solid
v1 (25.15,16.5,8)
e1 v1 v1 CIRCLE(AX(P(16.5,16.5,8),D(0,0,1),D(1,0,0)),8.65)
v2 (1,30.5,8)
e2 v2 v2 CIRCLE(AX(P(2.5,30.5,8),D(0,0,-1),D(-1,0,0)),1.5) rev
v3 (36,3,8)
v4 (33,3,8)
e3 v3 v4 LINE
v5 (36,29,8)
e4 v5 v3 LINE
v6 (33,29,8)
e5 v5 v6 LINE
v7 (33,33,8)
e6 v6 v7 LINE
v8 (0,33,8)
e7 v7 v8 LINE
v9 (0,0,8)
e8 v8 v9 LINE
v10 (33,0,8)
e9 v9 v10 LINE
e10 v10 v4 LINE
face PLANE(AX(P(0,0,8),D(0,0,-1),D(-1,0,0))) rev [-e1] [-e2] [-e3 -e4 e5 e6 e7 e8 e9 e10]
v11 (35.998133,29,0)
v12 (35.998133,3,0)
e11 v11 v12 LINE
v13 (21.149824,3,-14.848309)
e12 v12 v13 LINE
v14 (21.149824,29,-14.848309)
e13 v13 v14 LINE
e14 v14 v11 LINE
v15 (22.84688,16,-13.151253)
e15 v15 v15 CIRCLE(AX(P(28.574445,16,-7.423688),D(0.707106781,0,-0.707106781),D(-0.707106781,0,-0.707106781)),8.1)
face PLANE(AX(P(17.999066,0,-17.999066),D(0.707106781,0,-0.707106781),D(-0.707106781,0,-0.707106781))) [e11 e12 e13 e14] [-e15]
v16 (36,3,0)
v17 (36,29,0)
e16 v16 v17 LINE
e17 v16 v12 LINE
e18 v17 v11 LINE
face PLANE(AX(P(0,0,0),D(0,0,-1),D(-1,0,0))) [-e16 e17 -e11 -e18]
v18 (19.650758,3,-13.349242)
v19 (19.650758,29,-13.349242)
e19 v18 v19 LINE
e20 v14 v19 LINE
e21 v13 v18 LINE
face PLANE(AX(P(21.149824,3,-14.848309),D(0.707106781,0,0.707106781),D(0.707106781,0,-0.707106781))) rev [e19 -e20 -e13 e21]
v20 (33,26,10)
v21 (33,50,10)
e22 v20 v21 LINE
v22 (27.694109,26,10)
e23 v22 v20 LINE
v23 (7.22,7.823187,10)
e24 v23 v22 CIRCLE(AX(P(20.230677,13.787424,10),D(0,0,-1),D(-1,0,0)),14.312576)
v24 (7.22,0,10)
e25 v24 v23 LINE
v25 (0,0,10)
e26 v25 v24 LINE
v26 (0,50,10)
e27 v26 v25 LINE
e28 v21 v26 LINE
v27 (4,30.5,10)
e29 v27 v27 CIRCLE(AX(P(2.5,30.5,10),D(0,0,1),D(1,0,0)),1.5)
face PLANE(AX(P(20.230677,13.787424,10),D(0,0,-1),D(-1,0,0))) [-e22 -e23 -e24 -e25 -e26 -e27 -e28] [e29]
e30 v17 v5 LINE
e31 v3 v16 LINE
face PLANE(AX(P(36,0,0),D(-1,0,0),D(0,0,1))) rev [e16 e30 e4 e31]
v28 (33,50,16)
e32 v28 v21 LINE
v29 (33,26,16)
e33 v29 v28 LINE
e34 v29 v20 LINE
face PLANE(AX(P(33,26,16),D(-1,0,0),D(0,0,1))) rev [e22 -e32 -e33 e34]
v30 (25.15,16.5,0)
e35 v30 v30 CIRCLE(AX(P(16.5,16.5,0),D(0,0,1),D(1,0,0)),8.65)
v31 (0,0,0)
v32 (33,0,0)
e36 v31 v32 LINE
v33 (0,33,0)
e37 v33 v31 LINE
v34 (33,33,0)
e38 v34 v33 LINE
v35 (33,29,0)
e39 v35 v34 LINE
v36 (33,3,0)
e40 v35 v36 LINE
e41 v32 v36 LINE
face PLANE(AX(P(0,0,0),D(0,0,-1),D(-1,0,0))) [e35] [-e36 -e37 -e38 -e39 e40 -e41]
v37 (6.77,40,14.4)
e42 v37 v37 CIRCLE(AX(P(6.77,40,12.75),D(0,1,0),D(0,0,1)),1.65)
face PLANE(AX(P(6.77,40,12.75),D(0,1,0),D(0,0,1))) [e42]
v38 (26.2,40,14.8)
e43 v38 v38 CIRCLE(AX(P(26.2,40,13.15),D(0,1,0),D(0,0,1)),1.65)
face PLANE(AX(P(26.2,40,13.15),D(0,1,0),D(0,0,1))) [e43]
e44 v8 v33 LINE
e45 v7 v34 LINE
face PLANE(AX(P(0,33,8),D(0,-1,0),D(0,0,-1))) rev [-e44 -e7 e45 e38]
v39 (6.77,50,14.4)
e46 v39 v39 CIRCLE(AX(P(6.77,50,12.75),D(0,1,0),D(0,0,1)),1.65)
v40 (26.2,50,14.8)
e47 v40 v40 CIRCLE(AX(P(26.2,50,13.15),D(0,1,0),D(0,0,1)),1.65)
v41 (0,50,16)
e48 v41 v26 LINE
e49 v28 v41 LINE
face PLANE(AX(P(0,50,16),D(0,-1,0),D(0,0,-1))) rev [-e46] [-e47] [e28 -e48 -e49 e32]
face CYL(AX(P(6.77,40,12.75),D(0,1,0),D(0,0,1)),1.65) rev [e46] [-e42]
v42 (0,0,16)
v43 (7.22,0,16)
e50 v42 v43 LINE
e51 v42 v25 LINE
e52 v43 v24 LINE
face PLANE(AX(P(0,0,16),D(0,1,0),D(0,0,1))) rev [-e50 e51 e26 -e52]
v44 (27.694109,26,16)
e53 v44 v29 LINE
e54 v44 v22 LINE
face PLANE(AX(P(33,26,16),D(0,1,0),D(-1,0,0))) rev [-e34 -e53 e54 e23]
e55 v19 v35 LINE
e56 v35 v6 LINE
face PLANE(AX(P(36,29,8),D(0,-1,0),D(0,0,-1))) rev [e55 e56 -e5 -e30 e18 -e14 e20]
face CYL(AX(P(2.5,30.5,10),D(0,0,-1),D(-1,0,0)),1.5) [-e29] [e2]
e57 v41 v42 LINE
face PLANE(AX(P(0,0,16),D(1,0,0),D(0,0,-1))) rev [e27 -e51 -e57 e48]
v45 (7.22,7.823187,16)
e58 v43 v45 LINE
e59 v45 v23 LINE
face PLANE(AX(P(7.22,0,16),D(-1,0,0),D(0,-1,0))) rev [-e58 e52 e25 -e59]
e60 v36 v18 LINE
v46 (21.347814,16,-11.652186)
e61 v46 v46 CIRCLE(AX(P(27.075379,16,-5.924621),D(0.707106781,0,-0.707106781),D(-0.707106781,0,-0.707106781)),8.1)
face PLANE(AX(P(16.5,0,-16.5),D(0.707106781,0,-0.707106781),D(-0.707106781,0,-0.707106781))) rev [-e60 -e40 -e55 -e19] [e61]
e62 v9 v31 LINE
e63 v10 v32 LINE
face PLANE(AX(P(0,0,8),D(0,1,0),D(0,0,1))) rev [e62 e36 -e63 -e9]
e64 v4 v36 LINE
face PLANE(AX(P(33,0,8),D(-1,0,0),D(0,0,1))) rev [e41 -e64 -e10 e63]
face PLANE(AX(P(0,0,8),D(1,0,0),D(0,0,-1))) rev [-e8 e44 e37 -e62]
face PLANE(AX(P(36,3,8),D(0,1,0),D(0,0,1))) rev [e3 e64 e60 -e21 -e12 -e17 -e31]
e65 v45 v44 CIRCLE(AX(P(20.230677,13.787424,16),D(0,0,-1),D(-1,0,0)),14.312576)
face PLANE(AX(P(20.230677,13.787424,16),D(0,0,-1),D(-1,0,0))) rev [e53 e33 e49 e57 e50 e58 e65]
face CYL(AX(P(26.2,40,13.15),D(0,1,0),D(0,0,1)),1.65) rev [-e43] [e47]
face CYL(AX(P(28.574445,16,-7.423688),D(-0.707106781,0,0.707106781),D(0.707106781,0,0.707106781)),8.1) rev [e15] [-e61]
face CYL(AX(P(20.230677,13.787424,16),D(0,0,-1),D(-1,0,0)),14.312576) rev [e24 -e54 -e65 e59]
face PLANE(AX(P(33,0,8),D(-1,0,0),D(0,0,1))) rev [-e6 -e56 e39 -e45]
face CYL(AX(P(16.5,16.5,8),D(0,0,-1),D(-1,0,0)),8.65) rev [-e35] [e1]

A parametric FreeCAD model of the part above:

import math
import FreeCAD as App
import Part
import Sketcher
Q = App.Units.Quantity

doc = App.newDocument("Part")
body = doc.addObject("PartDesign::Body", "Body")

# Sketch on XY plane
sketch1 = body.newObject("Sketcher::SketchObject", "Sketch")
sketch1.AttachmentSupport = (doc.getObject("XY_Plane"), [""])
sketch1.MapMode = "FlatFace"
sketch1.addGeometry([
    Part.LineSegment(App.Vector(0, 33, 0), App.Vector(0, 0, 0)),  # 0
    Part.LineSegment(App.Vector(0, 0, 0), App.Vector(33, 0, 0)),  # 1
    Part.LineSegment(App.Vector(33, 0, 0), App.Vector(33, 33, 0)),  # 2
    Part.LineSegment(App.Vector(33, 33, 0), App.Vector(0, 33, 0)),  # 3
    Part.Circle(App.Vector(16, 16, 0), App.Vector(0, 0, 1), 9),  # 4
], False)
sketch1.addConstraint([
    Sketcher.Constraint("Coincident", 0, 2, 1, 1),
    Sketcher.Constraint("Coincident", 1, 2, 2, 1),
    Sketcher.Constraint("Coincident", 2, 2, 3, 1),
    Sketcher.Constraint("Coincident", 3, 2, 0, 1),
    Sketcher.Constraint("Vertical", 0),
    Sketcher.Constraint("Horizontal", 1),
    Sketcher.Constraint("Vertical", 2),
    Sketcher.Constraint("Horizontal", 3),
    Sketcher.Constraint("Coincident", 0, 2, -1, 1),
    Sketcher.Constraint("Equal", 3, 0),
    Sketcher.Constraint("Diameter", 4, Q("17.3 mm")),
    Sketcher.Constraint("DistanceX", 1, 1, 1, 2, Q("33 mm")),
    Sketcher.Constraint("DistanceX", -1, 1, 4, 3, Q("16.5 mm")),
    Sketcher.Constraint("DistanceY", -1, 1, 4, 3, Q("16.5 mm")),
])
pad1 = body.newObject("PartDesign::Pad", "Pad")
pad1.Profile = sketch1
pad1.Length = 8

# Sketch on YZ plane
sketch2 = body.newObject("Sketcher::SketchObject", "Sketch001")
sketch2.AttachmentSupport = (doc.getObject("YZ_Plane"), [""])
sketch2.MapMode = "FlatFace"
sketch2.AttachmentOffset = App.Placement(App.Vector(0, 0, 33), App.Rotation())
sketch2.addGeometry([
    Part.LineSegment(App.Vector(29, 8, 0), App.Vector(3, 8, 0)),
    Part.LineSegment(App.Vector(3, 8, 0), App.Vector(3, 0, 0)),
    Part.LineSegment(App.Vector(3, 0, 0), App.Vector(29, 0, 0)),
    Part.LineSegment(App.Vector(29, 0, 0), App.Vector(29, 8, 0)),
], False)
sketch2.addConstraint([
    Sketcher.Constraint("Coincident", 0, 2, 1, 1),
    Sketcher.Constraint("Coincident", 1, 2, 2, 1),
    Sketcher.Constraint("Coincident", 2, 2, 3, 1),
    Sketcher.Constraint("Coincident", 3, 2, 0, 1),
    Sketcher.Constraint("Horizontal", 0),
    Sketcher.Constraint("Vertical", 1),
    Sketcher.Constraint("Horizontal", 2),
    Sketcher.Constraint("Vertical", 3),
    Sketcher.Constraint("PointOnObject", 1, 2, -1),
    Sketcher.Constraint("DistanceX", 0, 2, 0, 1, Q("26 mm")),
    Sketcher.Constraint("DistanceY", 1, 2, 1, 1, Q("8 mm")),
    Sketcher.Constraint("DistanceX", -1, 1, 0, 2, Q("3 mm")),
])
pad2 = body.newObject("PartDesign::Pad", "Pad001")
pad2.Profile = sketch2
pad2.Length = 3

# Sketch on an angled plane
sketch3 = body.newObject("Sketcher::SketchObject", "Sketch002")
sketch3.Placement = App.Placement(App.Vector(16.5, 0, -16.5), App.Rotation(App.Vector(0, 1, 0), App.Vector(0.707106781, 0, 0.707106781), App.Vector(0.707106781, 0, -0.707106781), "ZXY"))
sketch3.addGeometry([
    Part.LineSegment(App.Vector(3, 25, 0), App.Vector(3, 4, 0)),  # 0
    Part.LineSegment(App.Vector(3, 4, 0), App.Vector(29, 4, 0)),  # 1
    Part.LineSegment(App.Vector(29, 4, 0), App.Vector(29, 25, 0)),  # 2
    Part.LineSegment(App.Vector(29, 25, 0), App.Vector(3, 25, 0)),  # 3
    Part.Circle(App.Vector(16, 15, 0), App.Vector(0, 0, 1), 8),  # 4
], False)
sketch3.addConstraint([
    Sketcher.Constraint("Coincident", 0, 2, 1, 1),
    Sketcher.Constraint("Coincident", 1, 2, 2, 1),
    Sketcher.Constraint("Coincident", 2, 2, 3, 1),
    Sketcher.Constraint("Coincident", 3, 2, 0, 1),
    Sketcher.Constraint("Vertical", 0),
    Sketcher.Constraint("Horizontal", 1),
    Sketcher.Constraint("Vertical", 2),
    Sketcher.Constraint("Horizontal", 3),
    Sketcher.Constraint("Diameter", 4, Q("16.2 mm")),
    Sketcher.Constraint("DistanceX", 1, 1, 1, 2, Q("26 mm")),
    Sketcher.Constraint("DistanceY", 0, 2, 0, 1, Q("21 mm")),
    Sketcher.Constraint("DistanceX", -1, 1, 4, 3, Q("16 mm")),
    Sketcher.Constraint("DistanceX", -1, 1, 0, 2, Q("3 mm")),
    Sketcher.Constraint("DistanceY", 0, 2, 4, 3, Q("10.5 mm")),
    Sketcher.Constraint("DistanceY", -1, 1, 4, 3, Q("14.955844 mm")),
])
pad3 = body.newObject("PartDesign::Pad", "Pad002")
pad3.Profile = sketch3
pad3.Length = 2.12

# Sketch on XY plane
sketch4 = body.newObject("Sketcher::SketchObject", "Sketch003")
sketch4.AttachmentSupport = (doc.getObject("XY_Plane"), [""])
sketch4.MapMode = "FlatFace"
sketch4.AttachmentOffset = App.Placement(App.Vector(0, 0, 8), App.Rotation())
sketch4.addGeometry(Part.Circle(App.Vector(2.5, 30.5, 0), App.Vector(0, 0, 1), 1.5), False)
sketch4.addConstraint([
    Sketcher.Constraint("Diameter", 0, Q("3 mm")),
    Sketcher.Constraint("DistanceX", -1, 1, 0, 3, Q("2.5 mm")),
    Sketcher.Constraint("DistanceY", -1, 1, 0, 3, Q("30.5 mm")),
])
pad4 = body.newObject("PartDesign::Pad", "Pad003")
pad4.Profile = sketch4
pad4.Length = 2

# Sketch on XY plane
sketch5 = body.newObject("Sketcher::SketchObject", "Sketch004")
sketch5.AttachmentSupport = (doc.getObject("XY_Plane"), [""])
sketch5.MapMode = "FlatFace"
sketch5.AttachmentOffset = App.Placement(App.Vector(0, 0, 10), App.Rotation())
sketch5.addGeometry([
    Part.LineSegment(App.Vector(7, 0, 0), App.Vector(7, 8, 0)),  # 0
    Part.ArcOfCircle(Part.Circle(App.Vector(20, 14, 0), App.Vector(0, 0, 1), 14), math.radians(59), math.radians(205)),  # 1
    Part.LineSegment(App.Vector(28, 26, 0), App.Vector(33, 26, 0)),  # 2
    Part.LineSegment(App.Vector(33, 26, 0), App.Vector(33, 50, 0)),  # 3
    Part.LineSegment(App.Vector(33, 50, 0), App.Vector(0, 50, 0)),  # 4
    Part.LineSegment(App.Vector(0, 50, 0), App.Vector(0, 0, 0)),  # 5
    Part.LineSegment(App.Vector(0, 0, 0), App.Vector(7, 0, 0)),  # 6
], False)
sketch5.addConstraint([
    Sketcher.Constraint("Coincident", 0, 2, 1, 2),
    Sketcher.Constraint("Coincident", 1, 1, 2, 1),
    Sketcher.Constraint("Coincident", 2, 2, 3, 1),
    Sketcher.Constraint("Coincident", 3, 2, 4, 1),
    Sketcher.Constraint("Coincident", 4, 2, 5, 1),
    Sketcher.Constraint("Coincident", 5, 2, 6, 1),
    Sketcher.Constraint("Coincident", 6, 2, 0, 1),
    Sketcher.Constraint("Vertical", 0),
    Sketcher.Constraint("Horizontal", 2),
    Sketcher.Constraint("Vertical", 3),
    Sketcher.Constraint("Horizontal", 4),
    Sketcher.Constraint("Vertical", 5),
    Sketcher.Constraint("Horizontal", 6),
    Sketcher.Constraint("Coincident", 5, 2, -1, 1),
    Sketcher.Constraint("DistanceX", 4, 2, 4, 1, Q("33 mm")),
    Sketcher.Constraint("DistanceY", 3, 1, 3, 2, Q("24 mm")),
    Sketcher.Constraint("DistanceY", 5, 2, 5, 1, Q("50 mm")),
    Sketcher.Constraint("DistanceX", 6, 1, 6, 2, Q("7.22 mm")),
    Sketcher.Constraint("Radius", 1, Q("14.312576 mm")),
    Sketcher.Constraint("DistanceX", 2, 1, 2, 2, Q("5.305891 mm")),
    Sketcher.Constraint("DistanceY", 0, 1, 0, 2, Q("7.823187 mm")),
])
pad5 = body.newObject("PartDesign::Pad", "Pad004")
pad5.Profile = sketch5
pad5.Length = 6

# Sketch on XZ plane
sketch6 = body.newObject("Sketcher::SketchObject", "Sketch005")
sketch6.AttachmentSupport = (doc.getObject("XZ_Plane"), [""])
sketch6.MapMode = "FlatFace"
sketch6.AttachmentOffset = App.Placement(App.Vector(0, 0, -50), App.Rotation())
sketch6.addGeometry([
    Part.Circle(App.Vector(6.8, 12.8, 0), App.Vector(0, 0, 1), 1.6),
    Part.Circle(App.Vector(26.2, 13.2, 0), App.Vector(0, 0, 1), 1.6),
], False)
sketch6.addConstraint([
    Sketcher.Constraint("Equal", 0, 1),
    Sketcher.Constraint("Diameter", 0, Q("3.3 mm")),
    Sketcher.Constraint("DistanceX", -1, 1, 1, 3, Q("26.2 mm")),
    Sketcher.Constraint("DistanceY", 0, 3, 1, 3, Q("0.4 mm")),
    Sketcher.Constraint("DistanceX", -1, 1, 0, 3, Q("6.77 mm")),
    Sketcher.Constraint("DistanceY", -1, 1, 0, 3, Q("12.75 mm")),
])
pocket1 = body.newObject("PartDesign::Pocket", "Pocket")
pocket1.Profile = sketch6
pocket1.Length = 10
pocket1.Reversed = True

doc.recompute()
